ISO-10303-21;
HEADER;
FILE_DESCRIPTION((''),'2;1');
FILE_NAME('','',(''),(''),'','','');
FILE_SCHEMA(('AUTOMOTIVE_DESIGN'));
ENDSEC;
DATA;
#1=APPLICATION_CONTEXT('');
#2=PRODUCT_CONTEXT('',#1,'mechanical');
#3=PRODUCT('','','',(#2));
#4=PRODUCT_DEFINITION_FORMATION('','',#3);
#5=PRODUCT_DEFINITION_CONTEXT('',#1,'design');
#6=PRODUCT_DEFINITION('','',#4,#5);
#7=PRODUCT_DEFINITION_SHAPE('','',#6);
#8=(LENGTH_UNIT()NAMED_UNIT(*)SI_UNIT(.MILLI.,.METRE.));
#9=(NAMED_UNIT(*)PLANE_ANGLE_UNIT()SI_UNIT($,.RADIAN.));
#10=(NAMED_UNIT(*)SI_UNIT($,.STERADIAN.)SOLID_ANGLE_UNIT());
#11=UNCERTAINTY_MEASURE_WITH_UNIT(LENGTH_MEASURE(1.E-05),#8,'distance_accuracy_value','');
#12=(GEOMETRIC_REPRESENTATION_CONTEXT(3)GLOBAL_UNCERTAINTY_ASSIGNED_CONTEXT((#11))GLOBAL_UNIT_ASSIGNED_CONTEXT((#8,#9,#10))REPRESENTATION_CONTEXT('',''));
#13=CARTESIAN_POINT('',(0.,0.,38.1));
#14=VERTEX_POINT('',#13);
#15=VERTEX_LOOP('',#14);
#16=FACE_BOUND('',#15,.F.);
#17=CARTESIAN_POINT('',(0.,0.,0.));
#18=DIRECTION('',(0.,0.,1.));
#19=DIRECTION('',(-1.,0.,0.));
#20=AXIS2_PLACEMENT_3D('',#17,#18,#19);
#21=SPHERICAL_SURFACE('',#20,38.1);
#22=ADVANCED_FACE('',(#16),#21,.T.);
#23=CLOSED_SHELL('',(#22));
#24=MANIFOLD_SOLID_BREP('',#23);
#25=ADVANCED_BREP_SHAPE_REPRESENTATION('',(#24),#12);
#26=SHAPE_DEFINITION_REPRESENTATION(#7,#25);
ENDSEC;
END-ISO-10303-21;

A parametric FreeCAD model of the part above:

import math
import FreeCAD as App
import Part
import Sketcher
Q = App.Units.Quantity

doc = App.newDocument("Part")
params = doc.addObject("Spreadsheet::Sheet", "Params")
for row, (alias, value) in enumerate([
    ("sketch1_radius", "1.5 in"),
    ("revolution_angle", "360 deg"),
], start=1):
    params.set(f"A{row}", alias)
    params.set(f"B{row}", "=" + value)
    params.setAlias(f"B{row}", alias)

body = doc.addObject("PartDesign::Body", "Body")

sketch1 = body.newObject("Sketcher::SketchObject", "Sketch")
sketch1.AttachmentSupport = (doc.getObject("XZ_Plane"), [""])
sketch1.MapMode = "FlatFace"
sketch1.addGeometry([
    Part.LineSegment(App.Vector(0, 38, 0), App.Vector(0, -38, 0)),
    Part.ArcOfCircle(Part.Circle(App.Vector(0, 0, 0), App.Vector(0, 0, 1), 38), math.radians(90), math.radians(270)),
], False)
sketch1.addConstraint([
    Sketcher.Constraint("Coincident", 0, 1, 1, 1),
    Sketcher.Constraint("Coincident", 1, 2, 0, 2),
    Sketcher.Constraint("Vertical", 0),
    Sketcher.Constraint("Coincident", 1, 3, -1, 1),
    Sketcher.Constraint("PointOnObject", 0, 1, -2),
    Sketcher.Constraint("Radius", 1, Q("1.5 in")),
])
sketch1.setExpression("Constraints[5]", "Params.sketch1_radius")
revolution = body.newObject("PartDesign::Revolution", "Revolution")
revolution.Profile = sketch1
revolution.ReferenceAxis = (sketch1, ["V_Axis"])
revolution.setExpression("Angle", "Params.revolution_angle")

doc.recompute()
